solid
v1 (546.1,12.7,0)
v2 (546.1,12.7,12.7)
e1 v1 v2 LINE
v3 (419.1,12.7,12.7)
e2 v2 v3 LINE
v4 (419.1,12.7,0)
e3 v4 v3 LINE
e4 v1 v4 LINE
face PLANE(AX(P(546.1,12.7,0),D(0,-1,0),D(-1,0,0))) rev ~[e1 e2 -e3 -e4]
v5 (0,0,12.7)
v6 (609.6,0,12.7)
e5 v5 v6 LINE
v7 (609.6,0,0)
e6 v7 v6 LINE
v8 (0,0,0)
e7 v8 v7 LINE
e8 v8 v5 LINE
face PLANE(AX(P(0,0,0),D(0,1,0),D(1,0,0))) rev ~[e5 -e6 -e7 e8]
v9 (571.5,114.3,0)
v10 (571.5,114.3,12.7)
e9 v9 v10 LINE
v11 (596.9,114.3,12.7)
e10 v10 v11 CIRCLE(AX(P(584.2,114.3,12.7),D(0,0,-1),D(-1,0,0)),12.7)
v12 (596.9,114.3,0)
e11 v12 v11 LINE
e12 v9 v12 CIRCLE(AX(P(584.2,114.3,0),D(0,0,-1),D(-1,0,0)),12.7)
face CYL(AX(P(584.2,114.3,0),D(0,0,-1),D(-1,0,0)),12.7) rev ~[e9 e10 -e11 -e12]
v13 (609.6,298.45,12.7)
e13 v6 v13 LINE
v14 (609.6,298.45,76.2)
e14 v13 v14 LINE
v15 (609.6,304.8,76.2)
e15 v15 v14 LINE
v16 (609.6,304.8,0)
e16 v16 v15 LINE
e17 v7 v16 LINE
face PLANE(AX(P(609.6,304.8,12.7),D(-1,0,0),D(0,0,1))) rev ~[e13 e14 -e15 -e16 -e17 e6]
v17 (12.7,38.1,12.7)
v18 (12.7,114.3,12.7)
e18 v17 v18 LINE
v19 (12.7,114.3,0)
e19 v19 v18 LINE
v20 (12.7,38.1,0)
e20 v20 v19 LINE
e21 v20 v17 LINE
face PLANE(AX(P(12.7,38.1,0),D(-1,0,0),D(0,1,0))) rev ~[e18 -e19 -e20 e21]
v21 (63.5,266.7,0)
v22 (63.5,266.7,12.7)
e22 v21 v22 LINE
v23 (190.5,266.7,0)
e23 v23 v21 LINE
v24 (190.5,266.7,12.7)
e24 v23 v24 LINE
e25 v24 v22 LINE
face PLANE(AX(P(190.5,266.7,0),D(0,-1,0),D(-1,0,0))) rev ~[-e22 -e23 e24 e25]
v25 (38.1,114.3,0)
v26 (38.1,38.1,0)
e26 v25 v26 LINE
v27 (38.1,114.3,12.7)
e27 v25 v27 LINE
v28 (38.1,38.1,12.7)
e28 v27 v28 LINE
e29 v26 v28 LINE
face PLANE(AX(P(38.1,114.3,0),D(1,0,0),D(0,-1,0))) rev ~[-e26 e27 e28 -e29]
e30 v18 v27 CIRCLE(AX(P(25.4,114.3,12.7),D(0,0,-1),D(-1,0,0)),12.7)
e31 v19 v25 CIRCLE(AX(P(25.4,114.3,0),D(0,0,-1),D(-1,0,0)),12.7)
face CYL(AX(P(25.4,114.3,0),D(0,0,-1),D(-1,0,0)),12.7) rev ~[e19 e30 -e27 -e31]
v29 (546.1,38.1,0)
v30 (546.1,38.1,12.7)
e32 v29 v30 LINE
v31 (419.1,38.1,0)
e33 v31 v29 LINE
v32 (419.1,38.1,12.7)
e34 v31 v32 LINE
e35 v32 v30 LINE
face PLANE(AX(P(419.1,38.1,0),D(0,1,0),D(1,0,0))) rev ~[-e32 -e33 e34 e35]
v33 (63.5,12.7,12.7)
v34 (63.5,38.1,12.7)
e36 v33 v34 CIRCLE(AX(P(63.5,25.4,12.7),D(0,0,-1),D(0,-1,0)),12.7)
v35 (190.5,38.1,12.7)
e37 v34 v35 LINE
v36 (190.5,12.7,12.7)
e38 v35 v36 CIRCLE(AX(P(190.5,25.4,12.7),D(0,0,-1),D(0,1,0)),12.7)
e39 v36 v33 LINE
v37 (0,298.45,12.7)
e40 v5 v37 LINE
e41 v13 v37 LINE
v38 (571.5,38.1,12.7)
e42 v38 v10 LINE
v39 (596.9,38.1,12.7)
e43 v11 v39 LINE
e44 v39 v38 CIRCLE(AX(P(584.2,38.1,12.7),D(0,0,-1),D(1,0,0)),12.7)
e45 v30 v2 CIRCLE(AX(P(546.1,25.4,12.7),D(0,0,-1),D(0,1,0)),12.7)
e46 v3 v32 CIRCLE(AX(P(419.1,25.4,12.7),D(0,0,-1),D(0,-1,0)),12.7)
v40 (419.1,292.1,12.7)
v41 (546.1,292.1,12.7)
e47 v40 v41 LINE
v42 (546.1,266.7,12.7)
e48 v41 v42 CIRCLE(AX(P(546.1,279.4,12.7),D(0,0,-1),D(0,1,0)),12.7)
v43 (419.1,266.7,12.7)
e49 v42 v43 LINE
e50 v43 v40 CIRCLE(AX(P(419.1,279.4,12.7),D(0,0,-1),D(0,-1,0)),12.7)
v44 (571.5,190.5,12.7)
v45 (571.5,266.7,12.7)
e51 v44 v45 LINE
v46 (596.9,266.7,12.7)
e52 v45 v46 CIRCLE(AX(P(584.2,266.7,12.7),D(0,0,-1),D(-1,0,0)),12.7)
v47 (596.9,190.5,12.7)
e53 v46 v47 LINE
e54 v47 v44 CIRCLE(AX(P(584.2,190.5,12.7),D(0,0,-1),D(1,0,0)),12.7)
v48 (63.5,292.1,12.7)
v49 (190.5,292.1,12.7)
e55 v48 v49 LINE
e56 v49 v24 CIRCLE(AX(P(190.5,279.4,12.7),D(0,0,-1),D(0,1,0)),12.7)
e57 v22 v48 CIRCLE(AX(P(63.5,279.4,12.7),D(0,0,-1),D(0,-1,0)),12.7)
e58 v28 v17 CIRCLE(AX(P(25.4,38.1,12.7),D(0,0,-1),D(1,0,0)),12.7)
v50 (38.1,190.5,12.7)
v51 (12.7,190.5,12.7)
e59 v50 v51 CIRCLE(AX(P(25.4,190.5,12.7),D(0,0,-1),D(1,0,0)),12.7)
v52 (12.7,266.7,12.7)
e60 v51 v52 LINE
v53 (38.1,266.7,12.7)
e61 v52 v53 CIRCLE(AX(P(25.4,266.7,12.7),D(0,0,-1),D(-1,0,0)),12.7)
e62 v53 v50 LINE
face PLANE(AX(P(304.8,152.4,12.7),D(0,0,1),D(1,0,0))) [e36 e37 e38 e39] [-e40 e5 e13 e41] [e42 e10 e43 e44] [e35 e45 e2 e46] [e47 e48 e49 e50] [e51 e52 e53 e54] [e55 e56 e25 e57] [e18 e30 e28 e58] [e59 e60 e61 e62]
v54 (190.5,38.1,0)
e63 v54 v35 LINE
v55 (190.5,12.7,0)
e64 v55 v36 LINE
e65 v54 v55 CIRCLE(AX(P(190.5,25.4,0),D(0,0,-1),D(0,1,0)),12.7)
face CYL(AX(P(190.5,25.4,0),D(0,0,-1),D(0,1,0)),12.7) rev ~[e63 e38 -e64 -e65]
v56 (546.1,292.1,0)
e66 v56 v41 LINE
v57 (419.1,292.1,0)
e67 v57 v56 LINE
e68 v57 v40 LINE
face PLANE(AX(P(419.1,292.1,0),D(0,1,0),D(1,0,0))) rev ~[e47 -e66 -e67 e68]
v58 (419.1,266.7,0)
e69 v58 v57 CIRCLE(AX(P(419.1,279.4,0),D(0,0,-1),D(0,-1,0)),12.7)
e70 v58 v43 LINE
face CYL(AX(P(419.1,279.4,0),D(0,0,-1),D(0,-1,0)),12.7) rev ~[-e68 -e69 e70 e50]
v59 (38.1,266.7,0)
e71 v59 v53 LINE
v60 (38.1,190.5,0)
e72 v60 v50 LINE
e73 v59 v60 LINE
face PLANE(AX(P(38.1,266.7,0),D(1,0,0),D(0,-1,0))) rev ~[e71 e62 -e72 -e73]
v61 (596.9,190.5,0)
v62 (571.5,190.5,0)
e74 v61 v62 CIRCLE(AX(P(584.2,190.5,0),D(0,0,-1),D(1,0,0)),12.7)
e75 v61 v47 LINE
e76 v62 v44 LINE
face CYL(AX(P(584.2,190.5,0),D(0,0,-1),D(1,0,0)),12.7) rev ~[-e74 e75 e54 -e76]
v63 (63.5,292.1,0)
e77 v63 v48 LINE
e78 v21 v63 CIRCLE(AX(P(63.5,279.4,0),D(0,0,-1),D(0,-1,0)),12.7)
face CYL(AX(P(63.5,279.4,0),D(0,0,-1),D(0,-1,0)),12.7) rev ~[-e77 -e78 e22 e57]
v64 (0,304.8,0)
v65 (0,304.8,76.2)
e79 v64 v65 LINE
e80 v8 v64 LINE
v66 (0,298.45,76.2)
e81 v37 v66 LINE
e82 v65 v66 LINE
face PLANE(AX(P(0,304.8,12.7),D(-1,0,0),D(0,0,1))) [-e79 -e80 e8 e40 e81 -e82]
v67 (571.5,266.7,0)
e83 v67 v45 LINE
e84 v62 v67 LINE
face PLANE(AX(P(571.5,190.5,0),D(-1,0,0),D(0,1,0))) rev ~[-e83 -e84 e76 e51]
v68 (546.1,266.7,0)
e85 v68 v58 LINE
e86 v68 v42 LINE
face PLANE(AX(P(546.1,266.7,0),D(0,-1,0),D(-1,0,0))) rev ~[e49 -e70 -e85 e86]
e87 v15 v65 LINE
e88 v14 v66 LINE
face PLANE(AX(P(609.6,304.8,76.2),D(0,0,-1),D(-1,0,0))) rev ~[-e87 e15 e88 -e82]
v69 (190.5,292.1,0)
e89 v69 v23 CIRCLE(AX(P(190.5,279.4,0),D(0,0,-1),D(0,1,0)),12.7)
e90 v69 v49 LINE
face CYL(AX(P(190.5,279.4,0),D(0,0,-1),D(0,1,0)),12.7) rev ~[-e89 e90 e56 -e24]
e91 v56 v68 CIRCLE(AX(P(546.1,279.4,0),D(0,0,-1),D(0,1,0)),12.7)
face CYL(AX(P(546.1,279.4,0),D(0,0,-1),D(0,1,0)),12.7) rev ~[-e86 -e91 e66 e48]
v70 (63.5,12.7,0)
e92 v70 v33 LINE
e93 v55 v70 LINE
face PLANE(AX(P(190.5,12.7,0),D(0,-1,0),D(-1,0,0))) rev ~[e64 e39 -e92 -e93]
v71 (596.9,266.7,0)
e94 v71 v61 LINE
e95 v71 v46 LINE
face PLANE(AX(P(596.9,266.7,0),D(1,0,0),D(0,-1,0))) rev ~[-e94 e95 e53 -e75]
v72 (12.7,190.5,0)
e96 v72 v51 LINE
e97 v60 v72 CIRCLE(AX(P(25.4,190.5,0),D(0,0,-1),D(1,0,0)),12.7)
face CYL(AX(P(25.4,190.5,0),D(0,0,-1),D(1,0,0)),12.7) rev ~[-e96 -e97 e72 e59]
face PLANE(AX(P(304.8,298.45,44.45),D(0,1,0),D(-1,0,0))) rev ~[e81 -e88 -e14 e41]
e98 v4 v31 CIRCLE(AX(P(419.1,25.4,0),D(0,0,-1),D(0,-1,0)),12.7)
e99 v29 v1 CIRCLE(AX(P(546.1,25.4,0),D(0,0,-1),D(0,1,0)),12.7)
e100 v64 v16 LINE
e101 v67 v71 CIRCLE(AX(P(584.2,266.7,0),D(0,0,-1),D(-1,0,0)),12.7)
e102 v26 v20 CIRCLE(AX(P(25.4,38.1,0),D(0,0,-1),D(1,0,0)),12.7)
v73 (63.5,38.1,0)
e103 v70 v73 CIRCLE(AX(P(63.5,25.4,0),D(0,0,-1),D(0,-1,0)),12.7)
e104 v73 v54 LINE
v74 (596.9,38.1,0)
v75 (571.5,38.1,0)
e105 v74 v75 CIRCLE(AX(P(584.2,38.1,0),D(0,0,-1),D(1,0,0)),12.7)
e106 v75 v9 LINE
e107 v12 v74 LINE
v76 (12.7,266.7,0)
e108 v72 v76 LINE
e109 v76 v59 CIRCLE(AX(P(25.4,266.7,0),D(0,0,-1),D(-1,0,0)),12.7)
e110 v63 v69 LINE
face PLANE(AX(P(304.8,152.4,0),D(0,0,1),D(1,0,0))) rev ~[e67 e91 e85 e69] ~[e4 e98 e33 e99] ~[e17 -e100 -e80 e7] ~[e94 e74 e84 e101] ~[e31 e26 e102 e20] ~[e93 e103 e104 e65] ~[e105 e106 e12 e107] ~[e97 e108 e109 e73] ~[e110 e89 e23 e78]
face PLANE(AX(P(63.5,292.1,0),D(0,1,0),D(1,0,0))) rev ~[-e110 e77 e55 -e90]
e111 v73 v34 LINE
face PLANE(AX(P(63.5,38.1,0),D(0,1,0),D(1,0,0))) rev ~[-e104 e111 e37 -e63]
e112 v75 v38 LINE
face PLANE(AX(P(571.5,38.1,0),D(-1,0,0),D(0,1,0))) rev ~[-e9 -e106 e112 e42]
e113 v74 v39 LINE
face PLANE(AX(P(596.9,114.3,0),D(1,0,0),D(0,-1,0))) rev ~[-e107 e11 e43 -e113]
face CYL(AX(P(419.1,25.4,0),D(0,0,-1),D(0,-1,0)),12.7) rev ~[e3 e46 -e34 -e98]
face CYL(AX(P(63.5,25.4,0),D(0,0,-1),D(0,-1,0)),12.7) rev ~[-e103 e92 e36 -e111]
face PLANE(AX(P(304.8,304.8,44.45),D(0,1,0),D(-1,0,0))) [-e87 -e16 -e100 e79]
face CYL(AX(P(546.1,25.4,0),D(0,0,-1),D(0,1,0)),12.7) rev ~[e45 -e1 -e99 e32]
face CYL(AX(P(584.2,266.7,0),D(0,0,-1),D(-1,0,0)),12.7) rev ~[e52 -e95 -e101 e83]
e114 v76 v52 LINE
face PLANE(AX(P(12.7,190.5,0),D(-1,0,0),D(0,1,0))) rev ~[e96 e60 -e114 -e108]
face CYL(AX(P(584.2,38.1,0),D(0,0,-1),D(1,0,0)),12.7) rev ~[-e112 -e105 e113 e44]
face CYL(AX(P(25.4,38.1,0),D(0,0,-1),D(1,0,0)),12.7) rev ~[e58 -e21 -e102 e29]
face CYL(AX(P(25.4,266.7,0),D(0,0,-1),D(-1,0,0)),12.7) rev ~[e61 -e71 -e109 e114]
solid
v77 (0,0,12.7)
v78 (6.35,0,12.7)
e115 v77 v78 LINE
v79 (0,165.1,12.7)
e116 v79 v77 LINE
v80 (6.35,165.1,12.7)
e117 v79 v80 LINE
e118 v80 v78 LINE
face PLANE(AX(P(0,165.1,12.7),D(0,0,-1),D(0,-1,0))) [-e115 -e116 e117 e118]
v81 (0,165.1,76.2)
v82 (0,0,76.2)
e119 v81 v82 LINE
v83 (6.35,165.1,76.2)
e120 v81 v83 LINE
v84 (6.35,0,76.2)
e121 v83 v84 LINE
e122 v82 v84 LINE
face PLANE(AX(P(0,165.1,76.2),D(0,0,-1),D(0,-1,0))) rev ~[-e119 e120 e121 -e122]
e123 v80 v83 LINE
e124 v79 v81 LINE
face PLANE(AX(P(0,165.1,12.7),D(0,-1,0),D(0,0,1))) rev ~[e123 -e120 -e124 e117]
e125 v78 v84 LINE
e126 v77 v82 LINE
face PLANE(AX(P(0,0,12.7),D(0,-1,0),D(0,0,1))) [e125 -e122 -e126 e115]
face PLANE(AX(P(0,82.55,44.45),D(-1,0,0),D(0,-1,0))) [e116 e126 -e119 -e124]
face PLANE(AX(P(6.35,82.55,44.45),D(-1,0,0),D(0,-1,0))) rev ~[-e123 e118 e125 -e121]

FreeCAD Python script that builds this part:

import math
import FreeCAD as App
import Part
import Sketcher

V = App.Vector
Q = App.Units.Quantity


def add_polygon(sketch, points):
    """Adds a closed chain of lines whose ends are joined by coincident constraints."""
    first, n = sketch.GeometryCount, len(points)
    for a, b in zip(points, points[1:] + points[:1]):
        sketch.addGeometry(Part.LineSegment(App.Vector(*a, 0), App.Vector(*b, 0)), False)
    for i in range(n):
        sketch.addConstraint(Sketcher.Constraint("Coincident", first + i, 2, first + (i + 1) % n, 1))

doc = App.newDocument("Part")
body = doc.addObject("PartDesign::Body", "Body")

# Sketch on XY plane
sketch1 = body.newObject("Sketcher::SketchObject", "Sketch")
sketch1.AttachmentSupport = (doc.getObject("XY_Plane"), [""])
sketch1.MapMode = "FlatFace"
add_polygon(sketch1, [(0, 305), (0, 0), (610, 0), (610, 305)])  # lines 0-3
sketch1.addGeometry(Part.LineSegment(V(64, 38, 0), V(190, 38, 0)), False)  # 4
sketch1.addGeometry(Part.ArcOfCircle(Part.Circle(V(190, 25, 0), V(0, 0, 1), 13), math.radians(-90), math.radians(90)), False)  # 5
sketch1.addGeometry(Part.LineSegment(V(190, 13, 0), V(64, 13, 0)), False)  # 6
sketch1.addGeometry(Part.ArcOfCircle(Part.Circle(V(64, 25, 0), V(0, 0, 1), 13), math.radians(90), math.radians(270)), False)  # 7
sketch1.addGeometry(Part.LineSegment(V(38, 114, 0), V(38, 38, 0)), False)  # 8
sketch1.addGeometry(Part.ArcOfCircle(Part.Circle(V(25, 38, 0), V(0, 0, 1), 13), math.radians(180), math.radians(360)), False)  # 9
sketch1.addGeometry(Part.LineSegment(V(13, 38, 0), V(13, 114, 0)), False)  # 10
sketch1.addGeometry(Part.ArcOfCircle(Part.Circle(V(25, 114, 0), V(0, 0, 1), 13), math.radians(0), math.radians(180)), False)  # 11
sketch1.addGeometry(Part.LineSegment(V(419, 38, 0), V(546, 38, 0)), False)  # 12
sketch1.addGeometry(Part.ArcOfCircle(Part.Circle(V(546, 25, 0), V(0, 0, 1), 13), math.radians(-90), math.radians(90)), False)  # 13
sketch1.addGeometry(Part.LineSegment(V(546, 13, 0), V(419, 13, 0)), False)  # 14
sketch1.addGeometry(Part.ArcOfCircle(Part.Circle(V(419, 25, 0), V(0, 0, 1), 13), math.radians(90), math.radians(270)), False)  # 15
sketch1.addGeometry(Part.LineSegment(V(597, 114, 0), V(597, 38, 0)), False)  # 16
sketch1.addGeometry(Part.ArcOfCircle(Part.Circle(V(584, 38, 0), V(0, 0, 1), 13), math.radians(180), math.radians(360)), False)  # 17
sketch1.addGeometry(Part.LineSegment(V(572, 38, 0), V(572, 114, 0)), False)  # 18
sketch1.addGeometry(Part.ArcOfCircle(Part.Circle(V(584, 114, 0), V(0, 0, 1), 13), math.radians(0), math.radians(180)), False)  # 19
sketch1.addGeometry(Part.LineSegment(V(38, 267, 0), V(38, 190, 0)), False)  # 20
sketch1.addGeometry(Part.ArcOfCircle(Part.Circle(V(25, 190, 0), V(0, 0, 1), 13), math.radians(180), math.radians(360)), False)  # 21
sketch1.addGeometry(Part.LineSegment(V(13, 190, 0), V(13, 267, 0)), False)  # 22
sketch1.addGeometry(Part.ArcOfCircle(Part.Circle(V(25, 267, 0), V(0, 0, 1), 13), math.radians(0), math.radians(180)), False)  # 23
sketch1.addGeometry(Part.LineSegment(V(64, 292, 0), V(190, 292, 0)), False)  # 24
sketch1.addGeometry(Part.ArcOfCircle(Part.Circle(V(190, 279, 0), V(0, 0, 1), 13), math.radians(-90), math.radians(90)), False)  # 25
sketch1.addGeometry(Part.LineSegment(V(190, 267, 0), V(64, 267, 0)), False)  # 26
sketch1.addGeometry(Part.ArcOfCircle(Part.Circle(V(64, 279, 0), V(0, 0, 1), 13), math.radians(90), math.radians(270)), False)  # 27
sketch1.addGeometry(Part.LineSegment(V(597, 267, 0), V(597, 190, 0)), False)  # 28
sketch1.addGeometry(Part.ArcOfCircle(Part.Circle(V(584, 190, 0), V(0, 0, 1), 13), math.radians(180), math.radians(360)), False)  # 29
sketch1.addGeometry(Part.LineSegment(V(572, 190, 0), V(572, 267, 0)), False)  # 30
sketch1.addGeometry(Part.ArcOfCircle(Part.Circle(V(584, 267, 0), V(0, 0, 1), 13), math.radians(0), math.radians(180)), False)  # 31
sketch1.addGeometry(Part.LineSegment(V(419, 292, 0), V(546, 292, 0)), False)  # 32
sketch1.addGeometry(Part.ArcOfCircle(Part.Circle(V(546, 279, 0), V(0, 0, 1), 13), math.radians(-90), math.radians(90)), False)  # 33
sketch1.addGeometry(Part.LineSegment(V(546, 267, 0), V(419, 267, 0)), False)  # 34
sketch1.addGeometry(Part.ArcOfCircle(Part.Circle(V(419, 279, 0), V(0, 0, 1), 13), math.radians(90), math.radians(270)), False)  # 35
sketch1.addConstraint(Sketcher.Constraint("Tangent", 4, 2, 5, 2))
sketch1.addConstraint(Sketcher.Constraint("Tangent", 5, 1, 6, 1))
sketch1.addConstraint(Sketcher.Constraint("Tangent", 6, 2, 7, 2))
sketch1.addConstraint(Sketcher.Constraint("Tangent", 7, 1, 4, 1))
sketch1.addConstraint(Sketcher.Constraint("Tangent", 8, 2, 9, 2))
sketch1.addConstraint(Sketcher.Constraint("Tangent", 9, 1, 10, 1))
sketch1.addConstraint(Sketcher.Constraint("Tangent", 10, 2, 11, 2))
sketch1.addConstraint(Sketcher.Constraint("Tangent", 11, 1, 8, 1))
sketch1.addConstraint(Sketcher.Constraint("Tangent", 12, 2, 13, 2))
sketch1.addConstraint(Sketcher.Constraint("Tangent", 13, 1, 14, 1))
sketch1.addConstraint(Sketcher.Constraint("Tangent", 14, 2, 15, 2))
sketch1.addConstraint(Sketcher.Constraint("Tangent", 15, 1, 12, 1))
sketch1.addConstraint(Sketcher.Constraint("Tangent", 16, 2, 17, 2))
sketch1.addConstraint(Sketcher.Constraint("Tangent", 17, 1, 18, 1))
sketch1.addConstraint(Sketcher.Constraint("Tangent", 18, 2, 19, 2))
sketch1.addConstraint(Sketcher.Constraint("Tangent", 19, 1, 16, 1))
sketch1.addConstraint(Sketcher.Constraint("Tangent", 20, 2, 21, 2))
sketch1.addConstraint(Sketcher.Constraint("Tangent", 21, 1, 22, 1))
sketch1.addConstraint(Sketcher.Constraint("Tangent", 22, 2, 23, 2))
sketch1.addConstraint(Sketcher.Constraint("Tangent", 23, 1, 20, 1))
sketch1.addConstraint(Sketcher.Constraint("Tangent", 24, 2, 25, 2))
sketch1.addConstraint(Sketcher.Constraint("Tangent", 25, 1, 26, 1))
sketch1.addConstraint(Sketcher.Constraint("Tangent", 26, 2, 27, 2))
sketch1.addConstraint(Sketcher.Constraint("Tangent", 27, 1, 24, 1))
sketch1.addConstraint(Sketcher.Constraint("Tangent", 28, 2, 29, 2))
sketch1.addConstraint(Sketcher.Constraint("Tangent", 29, 1, 30, 1))
sketch1.addConstraint(Sketcher.Constraint("Tangent", 30, 2, 31, 2))
sketch1.addConstraint(Sketcher.Constraint("Tangent", 31, 1, 28, 1))
sketch1.addConstraint(Sketcher.Constraint("Tangent", 32, 2, 33, 2))
sketch1.addConstraint(Sketcher.Constraint("Tangent", 33, 1, 34, 1))
sketch1.addConstraint(Sketcher.Constraint("Tangent", 34, 2, 35, 2))
sketch1.addConstraint(Sketcher.Constraint("Tangent", 35, 1, 32, 1))
sketch1.addConstraint(Sketcher.Constraint("Vertical", 0))
sketch1.addConstraint(Sketcher.Constraint("Horizontal", 1))
sketch1.addConstraint(Sketcher.Constraint("Vertical", 2))
sketch1.addConstraint(Sketcher.Constraint("Horizontal", 3))
sketch1.addConstraint(Sketcher.Constraint("Horizontal", 4))
sketch1.addConstraint(Sketcher.Constraint("Horizontal", 6))
sketch1.addConstraint(Sketcher.Constraint("Vertical", 8))
sketch1.addConstraint(Sketcher.Constraint("Vertical", 10))
sketch1.addConstraint(Sketcher.Constraint("Horizontal", 12))
sketch1.addConstraint(Sketcher.Constraint("Horizontal", 14))
sketch1.addConstraint(Sketcher.Constraint("Vertical", 16))
sketch1.addConstraint(Sketcher.Constraint("Vertical", 18))
sketch1.addConstraint(Sketcher.Constraint("Vertical", 20))
sketch1.addConstraint(Sketcher.Constraint("Vertical", 22))
sketch1.addConstraint(Sketcher.Constraint("Horizontal", 24))
sketch1.addConstraint(Sketcher.Constraint("Horizontal", 26))
sketch1.addConstraint(Sketcher.Constraint("Vertical", 28))
sketch1.addConstraint(Sketcher.Constraint("Vertical", 30))
sketch1.addConstraint(Sketcher.Constraint("Horizontal", 32))
sketch1.addConstraint(Sketcher.Constraint("Horizontal", 34))
sketch1.addConstraint(Sketcher.Constraint("Coincident", 0, 2, -1, 1))
sketch1.addConstraint(Sketcher.Constraint("Equal", 7, 9))
sketch1.addConstraint(Sketcher.Constraint("Equal", 11, 13))
sketch1.addConstraint(Sketcher.Constraint("Equal", 15, 17))
sketch1.addConstraint(Sketcher.Constraint("Equal", 19, 21))
sketch1.addConstraint(Sketcher.Constraint("Equal", 23, 25))
sketch1.addConstraint(Sketcher.Constraint("Equal", 27, 29))
sketch1.addConstraint(Sketcher.Constraint("Equal", 31, 33))
sketch1.addConstraint(Sketcher.Constraint("Horizontal", 7, 3, 13, 3))
sketch1.addConstraint(Sketcher.Constraint("Horizontal", 9, 3, 17, 3))
sketch1.addConstraint(Sketcher.Constraint("Horizontal", 11, 3, 19, 3))
sketch1.addConstraint(Sketcher.Constraint("Horizontal", 21, 3, 29, 3))
sketch1.addConstraint(Sketcher.Constraint("Horizontal", 23, 3, 31, 3))
sketch1.addConstraint(Sketcher.Constraint("Horizontal", 27, 3, 33, 3))
sketch1.addConstraint(Sketcher.Constraint("Horizontal", 17, 3, 4, 2))
sketch1.addConstraint(Sketcher.Constraint("Horizontal", 23, 1, 25, 1))
sketch1.addConstraint(Sketcher.Constraint("Vertical", 11, 3, 21, 3))
sketch1.addConstraint(Sketcher.Constraint("Vertical", 5, 3, 25, 3))
sketch1.addConstraint(Sketcher.Constraint("Vertical", 7, 3, 27, 3))
sketch1.addConstraint(Sketcher.Constraint("Vertical", 19, 3, 29, 3))
sketch1.addConstraint(Sketcher.Constraint("Vertical", 13, 3, 33, 3))
sketch1.addConstraint(Sketcher.Constraint("Vertical", 15, 3, 35, 3))
sketch1.addConstraint(Sketcher.Constraint("Equal", 6, 12))
sketch1.addConstraint(Sketcher.Constraint("Equal", 18, 20))
sketch1.addConstraint(Sketcher.Constraint("Radius", 5, Q("0.5 in")))
sketch1.addConstraint(Sketcher.Constraint("DistanceX", 1, 1, 1, 2, Q("24 in")))
sketch1.addConstraint(Sketcher.Constraint("DistanceX", 4, 1, 4, 2, Q("5 in")))
sketch1.addConstraint(Sketcher.Constraint("DistanceY", 0, 2, 0, 1, Q("12 in")))
sketch1.addConstraint(Sketcher.Constraint("DistanceY", 8, 2, 8, 1, Q("3 in")))
sketch1.addConstraint(Sketcher.Constraint("DistanceY", -1, 1, 5, 3, Q("1 in")))
sketch1.addConstraint(Sketcher.Constraint("DistanceX", -1, 1, 9, 3, Q("1 in")))
sketch1.addConstraint(Sketcher.Constraint("DistanceX", -1, 1, 17, 3, Q("23 in")))
sketch1.addConstraint(Sketcher.Constraint("DistanceY", -1, 1, 25, 3, Q("11 in")))
sketch1.addConstraint(Sketcher.Constraint("DistanceX", 5, 3, 13, 3, Q("14 in")))
sketch1.addConstraint(Sketcher.Constraint("DistanceX", 8, 2, 7, 1, Q("1 in")))
pad1 = body.newObject("PartDesign::Pad", "Pad")
pad1.Profile = sketch1
pad1.Length = Q("0.5 in")

# Sketch on XZ plane
sketch2 = body.newObject("Sketcher::SketchObject", "Sketch001")
sketch2.AttachmentSupport = (doc.getObject("XZ_Plane"), [""])
sketch2.MapMode = "FlatFace"
sketch2.AttachmentOffset = App.Placement(V(0, 0, -12 * 25.4), App.Rotation())
add_polygon(sketch2, [(610, 76), (610, 13), (0, 13), (0, 76)])  # lines 0-3
sketch2.addConstraint(Sketcher.Constraint("Vertical", 0))
sketch2.addConstraint(Sketcher.Constraint("Horizontal", 1))
sketch2.addConstraint(Sketcher.Constraint("Vertical", 2))
sketch2.addConstraint(Sketcher.Constraint("Horizontal", 3))
sketch2.addConstraint(Sketcher.Constraint("PointOnObject", 1, 2, -2))
sketch2.addConstraint(Sketcher.Constraint("DistanceX", 1, 2, 1, 1, Q("24 in")))
sketch2.addConstraint(Sketcher.Constraint("DistanceY", 0, 2, 0, 1, Q("2.5 in")))
sketch2.addConstraint(Sketcher.Constraint("DistanceY", -1, 1, 2, 2, Q("3 in")))
pad2 = body.newObject("PartDesign::Pad", "Pad001")
pad2.Profile = sketch2
pad2.Length = Q("0.25 in")
body2 = doc.addObject("PartDesign::Body", "Body001")

# Sketch on YZ plane
sketch3 = body2.newObject("Sketcher::SketchObject", "Sketch002")
sketch3.AttachmentSupport = (doc.getObject("YZ_Plane001"), [""])
sketch3.MapMode = "FlatFace"
add_polygon(sketch3, [(165, 76), (165, 13), (0, 13), (0, 76)])  # lines 0-3
sketch3.addConstraint(Sketcher.Constraint("Vertical", 0))
sketch3.addConstraint(Sketcher.Constraint("Horizontal", 1))
sketch3.addConstraint(Sketcher.Constraint("Vertical", 2))
sketch3.addConstraint(Sketcher.Constraint("Horizontal", 3))
sketch3.addConstraint(Sketcher.Constraint("PointOnObject", 1, 2, -2))
sketch3.addConstraint(Sketcher.Constraint("DistanceX", 1, 2, 1, 1, Q("6.5 in")))
sketch3.addConstraint(Sketcher.Constraint("DistanceY", 0, 2, 0, 1, Q("2.5 in")))
sketch3.addConstraint(Sketcher.Constraint("DistanceY", -1, 1, 2, 2, Q("3 in")))
pad3 = body2.newObject("PartDesign::Pad", "Pad002")
pad3.Profile = sketch3
pad3.Length = Q("0.25 in")

doc.recompute()
